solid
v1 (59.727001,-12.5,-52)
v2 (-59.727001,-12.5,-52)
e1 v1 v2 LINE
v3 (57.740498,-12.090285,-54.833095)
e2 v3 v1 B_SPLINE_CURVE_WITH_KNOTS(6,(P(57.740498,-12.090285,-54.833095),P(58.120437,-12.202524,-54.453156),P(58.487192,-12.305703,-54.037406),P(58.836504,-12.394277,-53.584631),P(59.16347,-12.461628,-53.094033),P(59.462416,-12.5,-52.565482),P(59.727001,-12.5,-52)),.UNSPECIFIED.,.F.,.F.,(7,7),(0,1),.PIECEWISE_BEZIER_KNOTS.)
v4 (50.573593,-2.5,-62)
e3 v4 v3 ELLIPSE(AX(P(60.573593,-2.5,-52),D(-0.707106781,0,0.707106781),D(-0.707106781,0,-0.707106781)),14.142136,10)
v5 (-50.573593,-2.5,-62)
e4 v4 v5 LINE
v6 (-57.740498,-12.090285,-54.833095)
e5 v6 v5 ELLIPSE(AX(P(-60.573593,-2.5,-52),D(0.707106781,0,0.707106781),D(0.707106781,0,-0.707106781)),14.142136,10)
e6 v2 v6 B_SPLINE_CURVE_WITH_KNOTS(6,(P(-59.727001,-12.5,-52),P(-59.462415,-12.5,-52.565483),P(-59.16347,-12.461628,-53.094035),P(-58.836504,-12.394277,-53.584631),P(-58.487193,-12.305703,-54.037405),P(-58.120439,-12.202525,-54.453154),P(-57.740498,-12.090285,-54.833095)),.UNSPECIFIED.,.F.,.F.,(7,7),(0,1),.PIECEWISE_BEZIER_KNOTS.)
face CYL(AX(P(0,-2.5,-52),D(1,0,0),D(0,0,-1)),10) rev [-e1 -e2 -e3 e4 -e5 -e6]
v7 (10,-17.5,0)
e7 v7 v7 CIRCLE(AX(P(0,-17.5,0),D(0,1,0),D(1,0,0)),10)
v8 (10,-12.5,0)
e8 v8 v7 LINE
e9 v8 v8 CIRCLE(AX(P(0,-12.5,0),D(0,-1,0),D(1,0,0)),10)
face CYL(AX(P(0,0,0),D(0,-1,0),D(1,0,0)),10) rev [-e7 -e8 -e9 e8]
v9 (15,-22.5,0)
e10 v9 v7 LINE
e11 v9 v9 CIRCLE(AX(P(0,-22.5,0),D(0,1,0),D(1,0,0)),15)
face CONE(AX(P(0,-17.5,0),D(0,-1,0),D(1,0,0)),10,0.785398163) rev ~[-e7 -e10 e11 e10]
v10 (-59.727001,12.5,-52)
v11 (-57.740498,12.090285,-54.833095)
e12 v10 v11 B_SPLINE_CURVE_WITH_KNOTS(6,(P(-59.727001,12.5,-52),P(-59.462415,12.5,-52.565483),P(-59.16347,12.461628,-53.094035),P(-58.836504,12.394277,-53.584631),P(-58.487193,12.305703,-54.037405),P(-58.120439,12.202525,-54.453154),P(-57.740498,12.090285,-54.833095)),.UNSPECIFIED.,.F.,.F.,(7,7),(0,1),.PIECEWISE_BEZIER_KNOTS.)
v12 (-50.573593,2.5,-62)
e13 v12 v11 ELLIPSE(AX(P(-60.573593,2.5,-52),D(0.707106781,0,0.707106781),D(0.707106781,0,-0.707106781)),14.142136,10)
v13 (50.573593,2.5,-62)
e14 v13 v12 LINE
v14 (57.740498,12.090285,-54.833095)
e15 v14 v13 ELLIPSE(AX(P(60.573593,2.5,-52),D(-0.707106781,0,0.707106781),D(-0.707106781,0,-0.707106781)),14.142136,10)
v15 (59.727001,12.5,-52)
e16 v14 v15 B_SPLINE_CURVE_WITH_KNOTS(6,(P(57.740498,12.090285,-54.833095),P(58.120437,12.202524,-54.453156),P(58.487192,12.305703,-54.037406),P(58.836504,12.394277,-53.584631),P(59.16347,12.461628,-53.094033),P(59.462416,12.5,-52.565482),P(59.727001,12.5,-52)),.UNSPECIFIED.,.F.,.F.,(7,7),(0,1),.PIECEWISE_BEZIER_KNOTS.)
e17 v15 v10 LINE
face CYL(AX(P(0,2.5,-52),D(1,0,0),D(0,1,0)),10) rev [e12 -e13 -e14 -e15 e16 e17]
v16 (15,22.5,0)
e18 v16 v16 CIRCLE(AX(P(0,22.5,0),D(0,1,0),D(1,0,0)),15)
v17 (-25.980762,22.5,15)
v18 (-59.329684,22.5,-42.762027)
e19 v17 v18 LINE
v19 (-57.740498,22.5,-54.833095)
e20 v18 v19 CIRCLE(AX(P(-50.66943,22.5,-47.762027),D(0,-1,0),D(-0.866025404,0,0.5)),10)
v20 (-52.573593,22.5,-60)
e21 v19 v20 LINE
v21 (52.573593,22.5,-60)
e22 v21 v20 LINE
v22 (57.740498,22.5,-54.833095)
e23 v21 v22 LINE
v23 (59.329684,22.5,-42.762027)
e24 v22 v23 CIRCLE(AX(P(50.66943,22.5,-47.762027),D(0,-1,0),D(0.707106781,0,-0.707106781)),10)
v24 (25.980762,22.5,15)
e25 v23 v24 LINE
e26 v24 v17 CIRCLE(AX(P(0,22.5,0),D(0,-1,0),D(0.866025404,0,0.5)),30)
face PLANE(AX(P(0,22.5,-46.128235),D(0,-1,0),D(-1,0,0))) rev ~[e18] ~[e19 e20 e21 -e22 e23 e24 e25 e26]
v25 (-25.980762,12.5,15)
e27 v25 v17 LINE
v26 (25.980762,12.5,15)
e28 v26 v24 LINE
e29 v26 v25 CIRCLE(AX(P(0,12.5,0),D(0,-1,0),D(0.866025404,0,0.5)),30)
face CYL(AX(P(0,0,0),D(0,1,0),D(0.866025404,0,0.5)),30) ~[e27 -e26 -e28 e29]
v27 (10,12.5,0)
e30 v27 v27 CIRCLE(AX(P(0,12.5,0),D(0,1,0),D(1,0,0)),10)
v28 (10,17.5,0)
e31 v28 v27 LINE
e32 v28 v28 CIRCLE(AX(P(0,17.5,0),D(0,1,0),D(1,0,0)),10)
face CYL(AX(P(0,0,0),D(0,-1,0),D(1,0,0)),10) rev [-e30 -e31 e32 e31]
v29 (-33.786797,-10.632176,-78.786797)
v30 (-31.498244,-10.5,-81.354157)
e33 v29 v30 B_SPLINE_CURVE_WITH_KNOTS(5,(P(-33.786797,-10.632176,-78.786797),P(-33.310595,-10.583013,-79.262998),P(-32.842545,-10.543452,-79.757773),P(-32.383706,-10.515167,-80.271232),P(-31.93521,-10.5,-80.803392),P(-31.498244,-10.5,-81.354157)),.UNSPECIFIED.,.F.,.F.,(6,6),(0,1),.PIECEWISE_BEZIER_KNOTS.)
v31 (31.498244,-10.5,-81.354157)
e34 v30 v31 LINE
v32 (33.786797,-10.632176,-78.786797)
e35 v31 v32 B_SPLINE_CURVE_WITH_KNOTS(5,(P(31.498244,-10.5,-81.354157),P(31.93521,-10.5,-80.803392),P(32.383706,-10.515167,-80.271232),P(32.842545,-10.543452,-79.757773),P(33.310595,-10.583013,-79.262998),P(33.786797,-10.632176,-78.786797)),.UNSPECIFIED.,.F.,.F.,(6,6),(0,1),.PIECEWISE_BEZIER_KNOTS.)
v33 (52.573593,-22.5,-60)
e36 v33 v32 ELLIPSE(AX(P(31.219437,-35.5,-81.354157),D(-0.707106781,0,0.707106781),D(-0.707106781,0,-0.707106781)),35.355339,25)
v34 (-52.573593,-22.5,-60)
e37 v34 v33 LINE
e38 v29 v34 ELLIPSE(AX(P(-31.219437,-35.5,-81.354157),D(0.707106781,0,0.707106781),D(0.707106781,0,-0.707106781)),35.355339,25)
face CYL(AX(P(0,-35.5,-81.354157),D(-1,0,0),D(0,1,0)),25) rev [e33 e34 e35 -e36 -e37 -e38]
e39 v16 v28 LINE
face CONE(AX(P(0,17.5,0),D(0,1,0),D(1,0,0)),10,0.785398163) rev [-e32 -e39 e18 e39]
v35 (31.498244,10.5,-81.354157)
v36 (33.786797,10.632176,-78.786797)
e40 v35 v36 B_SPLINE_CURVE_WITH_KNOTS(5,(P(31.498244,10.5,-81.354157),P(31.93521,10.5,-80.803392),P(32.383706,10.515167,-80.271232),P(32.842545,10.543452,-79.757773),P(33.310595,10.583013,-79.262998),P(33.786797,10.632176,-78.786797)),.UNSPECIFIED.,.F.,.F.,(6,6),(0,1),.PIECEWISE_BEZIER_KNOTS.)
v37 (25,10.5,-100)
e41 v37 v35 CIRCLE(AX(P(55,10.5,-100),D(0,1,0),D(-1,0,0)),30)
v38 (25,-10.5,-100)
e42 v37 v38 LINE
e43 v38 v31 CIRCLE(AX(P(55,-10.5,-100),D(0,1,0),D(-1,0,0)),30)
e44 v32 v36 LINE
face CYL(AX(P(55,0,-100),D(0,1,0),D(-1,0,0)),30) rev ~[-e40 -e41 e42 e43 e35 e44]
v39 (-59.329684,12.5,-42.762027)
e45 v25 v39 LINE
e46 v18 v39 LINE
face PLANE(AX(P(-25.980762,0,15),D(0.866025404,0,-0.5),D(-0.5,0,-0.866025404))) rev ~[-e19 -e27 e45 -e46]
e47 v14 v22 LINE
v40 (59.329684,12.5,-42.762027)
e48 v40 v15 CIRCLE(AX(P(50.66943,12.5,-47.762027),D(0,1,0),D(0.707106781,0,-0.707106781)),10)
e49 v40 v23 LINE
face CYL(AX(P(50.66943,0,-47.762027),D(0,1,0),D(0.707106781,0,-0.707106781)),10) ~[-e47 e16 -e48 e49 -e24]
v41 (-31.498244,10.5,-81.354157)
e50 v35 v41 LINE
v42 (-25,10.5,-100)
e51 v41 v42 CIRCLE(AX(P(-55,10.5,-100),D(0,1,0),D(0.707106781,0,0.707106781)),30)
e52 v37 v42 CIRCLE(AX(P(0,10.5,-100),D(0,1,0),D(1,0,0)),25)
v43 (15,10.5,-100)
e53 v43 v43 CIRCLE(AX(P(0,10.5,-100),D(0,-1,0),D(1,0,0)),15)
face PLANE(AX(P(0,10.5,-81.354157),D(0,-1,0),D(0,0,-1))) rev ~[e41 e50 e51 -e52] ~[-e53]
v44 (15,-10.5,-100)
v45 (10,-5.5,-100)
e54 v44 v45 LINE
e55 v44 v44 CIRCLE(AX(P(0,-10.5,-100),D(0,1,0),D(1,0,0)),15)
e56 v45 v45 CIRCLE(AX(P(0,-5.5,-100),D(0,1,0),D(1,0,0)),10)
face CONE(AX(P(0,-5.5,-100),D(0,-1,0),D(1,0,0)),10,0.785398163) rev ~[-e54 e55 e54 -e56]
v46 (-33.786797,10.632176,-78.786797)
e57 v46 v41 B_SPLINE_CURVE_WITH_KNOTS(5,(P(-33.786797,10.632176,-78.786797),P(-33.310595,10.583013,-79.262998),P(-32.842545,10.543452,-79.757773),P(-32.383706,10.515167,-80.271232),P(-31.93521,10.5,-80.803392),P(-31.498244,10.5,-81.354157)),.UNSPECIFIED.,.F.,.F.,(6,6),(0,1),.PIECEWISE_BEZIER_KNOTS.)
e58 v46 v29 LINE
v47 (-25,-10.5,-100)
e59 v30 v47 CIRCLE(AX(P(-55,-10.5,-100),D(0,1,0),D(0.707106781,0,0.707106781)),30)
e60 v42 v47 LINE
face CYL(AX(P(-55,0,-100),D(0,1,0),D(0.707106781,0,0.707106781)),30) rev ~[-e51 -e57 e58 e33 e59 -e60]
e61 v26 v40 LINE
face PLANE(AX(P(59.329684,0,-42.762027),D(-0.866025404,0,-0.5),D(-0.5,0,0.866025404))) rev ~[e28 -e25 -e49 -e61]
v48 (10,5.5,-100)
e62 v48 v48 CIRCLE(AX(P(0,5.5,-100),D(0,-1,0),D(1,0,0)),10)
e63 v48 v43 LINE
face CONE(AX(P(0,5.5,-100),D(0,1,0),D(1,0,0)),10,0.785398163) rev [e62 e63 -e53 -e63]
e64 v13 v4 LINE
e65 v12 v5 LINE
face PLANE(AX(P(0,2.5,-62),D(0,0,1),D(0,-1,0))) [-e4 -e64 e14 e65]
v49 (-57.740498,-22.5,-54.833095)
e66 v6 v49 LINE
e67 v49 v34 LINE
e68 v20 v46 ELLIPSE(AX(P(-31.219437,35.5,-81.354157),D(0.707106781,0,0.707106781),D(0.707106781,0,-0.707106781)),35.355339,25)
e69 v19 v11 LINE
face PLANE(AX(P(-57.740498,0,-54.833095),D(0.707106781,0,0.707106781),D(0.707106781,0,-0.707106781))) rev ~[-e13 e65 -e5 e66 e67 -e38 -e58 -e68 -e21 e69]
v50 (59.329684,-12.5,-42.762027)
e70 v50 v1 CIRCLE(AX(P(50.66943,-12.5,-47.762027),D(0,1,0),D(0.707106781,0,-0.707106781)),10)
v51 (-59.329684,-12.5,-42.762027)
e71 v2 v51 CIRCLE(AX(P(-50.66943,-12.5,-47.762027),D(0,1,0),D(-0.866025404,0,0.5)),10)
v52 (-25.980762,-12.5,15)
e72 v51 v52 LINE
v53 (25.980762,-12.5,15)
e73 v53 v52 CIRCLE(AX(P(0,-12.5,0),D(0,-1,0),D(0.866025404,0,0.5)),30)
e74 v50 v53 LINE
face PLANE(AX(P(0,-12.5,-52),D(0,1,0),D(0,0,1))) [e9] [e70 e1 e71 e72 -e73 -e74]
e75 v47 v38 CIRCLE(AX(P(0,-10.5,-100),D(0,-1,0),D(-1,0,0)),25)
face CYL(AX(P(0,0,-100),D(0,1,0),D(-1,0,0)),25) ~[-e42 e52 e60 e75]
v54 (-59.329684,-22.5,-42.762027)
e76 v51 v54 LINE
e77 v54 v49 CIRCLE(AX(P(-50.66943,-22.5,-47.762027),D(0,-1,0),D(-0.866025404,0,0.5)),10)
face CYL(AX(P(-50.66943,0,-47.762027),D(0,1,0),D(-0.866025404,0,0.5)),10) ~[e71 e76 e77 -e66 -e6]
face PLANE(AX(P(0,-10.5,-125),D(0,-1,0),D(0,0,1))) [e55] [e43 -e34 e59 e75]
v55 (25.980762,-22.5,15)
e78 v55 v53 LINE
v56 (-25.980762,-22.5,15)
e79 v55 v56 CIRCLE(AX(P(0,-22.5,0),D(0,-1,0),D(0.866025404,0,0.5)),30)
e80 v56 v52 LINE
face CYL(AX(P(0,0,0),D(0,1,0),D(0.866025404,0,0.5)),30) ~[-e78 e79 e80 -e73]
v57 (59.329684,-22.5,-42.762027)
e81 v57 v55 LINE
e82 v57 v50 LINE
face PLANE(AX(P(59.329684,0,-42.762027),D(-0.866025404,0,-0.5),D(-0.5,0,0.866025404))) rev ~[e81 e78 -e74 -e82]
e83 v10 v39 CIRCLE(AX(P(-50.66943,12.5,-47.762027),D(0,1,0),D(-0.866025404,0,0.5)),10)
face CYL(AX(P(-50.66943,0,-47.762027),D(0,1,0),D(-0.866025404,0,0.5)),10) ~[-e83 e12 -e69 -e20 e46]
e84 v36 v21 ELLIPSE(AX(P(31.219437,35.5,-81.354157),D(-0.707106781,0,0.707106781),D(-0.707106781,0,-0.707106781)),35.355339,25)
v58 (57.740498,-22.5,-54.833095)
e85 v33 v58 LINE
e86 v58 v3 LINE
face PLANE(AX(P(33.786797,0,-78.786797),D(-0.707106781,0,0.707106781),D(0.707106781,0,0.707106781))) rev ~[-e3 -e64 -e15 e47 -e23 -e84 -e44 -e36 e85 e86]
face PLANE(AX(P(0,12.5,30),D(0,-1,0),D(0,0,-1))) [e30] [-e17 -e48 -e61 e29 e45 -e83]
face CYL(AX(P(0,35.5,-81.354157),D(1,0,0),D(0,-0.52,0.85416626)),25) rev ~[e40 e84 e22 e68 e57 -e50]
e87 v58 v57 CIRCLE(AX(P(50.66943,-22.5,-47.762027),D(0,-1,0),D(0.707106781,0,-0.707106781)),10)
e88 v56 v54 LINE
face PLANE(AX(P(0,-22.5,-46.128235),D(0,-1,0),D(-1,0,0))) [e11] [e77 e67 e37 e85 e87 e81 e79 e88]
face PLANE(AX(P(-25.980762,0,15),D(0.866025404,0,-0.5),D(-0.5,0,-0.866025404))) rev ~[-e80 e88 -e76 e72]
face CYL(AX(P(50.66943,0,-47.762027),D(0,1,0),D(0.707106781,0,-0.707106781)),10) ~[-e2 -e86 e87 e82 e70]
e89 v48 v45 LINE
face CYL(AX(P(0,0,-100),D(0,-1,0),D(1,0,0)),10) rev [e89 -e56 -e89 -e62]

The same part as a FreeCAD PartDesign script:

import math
import FreeCAD as App
import Part
import Sketcher
from FreeCAD import Vector
Q = App.Units.Quantity


def edges_at(feature, points):
    """Names of the edges that pass closest to the given points."""
    edges = feature.Shape.Edges
    near = lambda p: min(range(len(edges)), key=lambda i: edges[i].distToShape(Part.Vertex(*p))[0])
    return sorted({f"Edge{near(p) + 1}" for p in points})

doc = App.newDocument("Part")
body = doc.addObject("PartDesign::Body", "Body")

sketch1 = body.newObject("Sketcher::SketchObject", "Sketch")
sketch1.AttachmentSupport = (doc.getObject("XZ_Plane"), [""])
sketch1.MapMode = "FlatFace"
sketch1.addGeometry(Part.LineSegment(Vector(-59, -43, 0), Vector(-26, 15, 0)), False)
sketch1.addGeometry(Part.ArcOfCircle(Part.Circle(Vector(0, 0, 0), Vector(0, 0, 1), 30), math.radians(30), math.radians(150)), False)
sketch1.addGeometry(Part.LineSegment(Vector(26, 15, 0), Vector(59, -43, 0)), False)
sketch1.addGeometry(Part.ArcOfCircle(Part.Circle(Vector(51, -48, 0), Vector(0, 0, 1), 10), math.radians(-45), math.radians(30)), False)
sketch1.addGeometry(Part.LineSegment(Vector(58, -55, 0), Vector(34, -79, 0)), False)
sketch1.addGeometry(Part.ArcOfCircle(Part.Circle(Vector(55, -100, 0), Vector(0, 0, 1), 30), math.radians(135), math.radians(180)), False)
sketch1.addGeometry(Part.ArcOfCircle(Part.Circle(Vector(0, -100, 0), Vector(0, 0, 1), 25), math.radians(180), math.radians(360)), False)
sketch1.addGeometry(Part.ArcOfCircle(Part.Circle(Vector(-55, -100, 0), Vector(0, 0, 1), 30), math.radians(0), math.radians(45)), False)
sketch1.addGeometry(Part.LineSegment(Vector(-34, -79, 0), Vector(-58, -55, 0)), False)
sketch1.addGeometry(Part.ArcOfCircle(Part.Circle(Vector(-51, -48, 0), Vector(0, 0, 1), 10), math.radians(150), math.radians(225)), False)
sketch1.addGeometry(Part.Circle(Vector(0, 0, 0), Vector(0, 0, 1), 10), False)
sketch1.addGeometry(Part.Circle(Vector(0, -100, 0), Vector(0, 0, 1), 10), False)
sketch1.addConstraint(Sketcher.Constraint("Tangent", 0, 2, 1, 2))
sketch1.addConstraint(Sketcher.Constraint("Tangent", 1, 1, 2, 1))
sketch1.addConstraint(Sketcher.Constraint("Tangent", 2, 2, 3, 2))
sketch1.addConstraint(Sketcher.Constraint("Tangent", 3, 1, 4, 1))
sketch1.addConstraint(Sketcher.Constraint("Tangent", 4, 2, 5, 1))
sketch1.addConstraint(Sketcher.Constraint("Tangent", 5, 2, 6, 2))
sketch1.addConstraint(Sketcher.Constraint("Tangent", 6, 1, 7, 1))
sketch1.addConstraint(Sketcher.Constraint("Tangent", 7, 2, 8, 1))
sketch1.addConstraint(Sketcher.Constraint("Tangent", 8, 2, 9, 2))
sketch1.addConstraint(Sketcher.Constraint("Tangent", 9, 1, 0, 1))
sketch1.addConstraint(Sketcher.Constraint("Coincident", 1, 3, -1, 1))
sketch1.addConstraint(Sketcher.Constraint("Coincident", 10, 3, -1, 1))
sketch1.addConstraint(Sketcher.Constraint("Coincident", 11, 3, 6, 3))
sketch1.addConstraint(Sketcher.Constraint("Equal", 1, 5))
sketch1.addConstraint(Sketcher.Constraint("Equal", 5, 7))
sketch1.addConstraint(Sketcher.Constraint("Equal", 3, 9))
sketch1.addConstraint(Sketcher.Constraint("Equal", 9, 10))
sketch1.addConstraint(Sketcher.Constraint("Equal", 10, 11))
sketch1.addConstraint(Sketcher.Constraint("Symmetric", 5, 3, 7, 3, -2))
sketch1.addConstraint(Sketcher.Constraint("Symmetric", 3, 3, 9, 3, -2))
sketch1.addConstraint(Sketcher.Constraint("Perpendicular", 4, 8))
sketch1.addConstraint(Sketcher.Constraint("Horizontal", 5, 3, 6, 3))
sketch1.addConstraint(Sketcher.Constraint("Diameter", 10, 20.0))
sketch1.addConstraint(Sketcher.Constraint("Radius", 1, 30.0))
sketch1.addConstraint(Sketcher.Constraint("Radius", 6, 25.0))
sketch1.addConstraint(Sketcher.Constraint("Angle", 0, Q("60 deg")))
sketch1.addConstraint(Sketcher.Constraint("DistanceY", 5, 3, -1, 1, 100.0))
pad1 = body.newObject("PartDesign::Pad", "Pad")
pad1.Profile = sketch1
pad1.Length = 45
pad1.Midplane = True

sketch2 = body.newObject("Sketcher::SketchObject", "Sketch001")
sketch2.AttachmentSupport = (doc.getObject("YZ_Plane"), [""])
sketch2.MapMode = "FlatFace"
sketch2.addGeometry(Part.LineSegment(Vector(12, -52, 0), Vector(12, 30, 0)), False)
sketch2.addGeometry(Part.LineSegment(Vector(12, 30, 0), Vector(-12, 30, 0)), False)
sketch2.addGeometry(Part.LineSegment(Vector(-12, 30, 0), Vector(-12, -52, 0)), False)
sketch2.addGeometry(Part.ArcOfCircle(Part.Circle(Vector(-2, -52, 0), Vector(0, 0, 1), 10), math.radians(180), math.radians(270)), False)
sketch2.addGeometry(Part.LineSegment(Vector(-2, -62, 0), Vector(2, -62, 0)), False)
sketch2.addGeometry(Part.ArcOfCircle(Part.Circle(Vector(2, -52, 0), Vector(0, 0, 1), 10), math.radians(-90), math.radians(0)), False)
sketch2.addGeometry(Part.LineSegment(Vector(10, -81, 0), Vector(10, -125, 0)), False)
sketch2.addGeometry(Part.LineSegment(Vector(10, -125, 0), Vector(22, -125, 0)), False)
sketch2.addGeometry(Part.LineSegment(Vector(22, -125, 0), Vector(22, -60, 0)), False)
sketch2.addGeometry(Part.ArcOfCircle(Part.Circle(Vector(35, -81, 0), Vector(0, 0, 1), 25), math.radians(121), math.radians(180)), False)
sketch2.addGeometry(Part.LineSegment(Vector(-22, -125, 0), Vector(-10, -125, 0)), False)
sketch2.addGeometry(Part.LineSegment(Vector(-10, -125, 0), Vector(-10, -81, 0)), False)
sketch2.addGeometry(Part.ArcOfCircle(Part.Circle(Vector(-35, -81, 0), Vector(0, 0, 1), 25), math.radians(0), math.radians(59)), False)
sketch2.addGeometry(Part.LineSegment(Vector(-22, -60, 0), Vector(-22, -125, 0)), False)
sketch2.addConstraint(Sketcher.Constraint("Coincident", 0, 2, 1, 1))
sketch2.addConstraint(Sketcher.Constraint("Coincident", 1, 2, 2, 1))
sketch2.addConstraint(Sketcher.Constraint("Tangent", 2, 2, 3, 1))
sketch2.addConstraint(Sketcher.Constraint("Tangent", 3, 2, 4, 1))
sketch2.addConstraint(Sketcher.Constraint("Tangent", 4, 2, 5, 1))
sketch2.addConstraint(Sketcher.Constraint("Tangent", 5, 2, 0, 1))
sketch2.addConstraint(Sketcher.Constraint("Coincident", 6, 2, 7, 1))
sketch2.addConstraint(Sketcher.Constraint("Coincident", 7, 2, 8, 1))
sketch2.addConstraint(Sketcher.Constraint("Coincident", 8, 2, 9, 1))
sketch2.addConstraint(Sketcher.Constraint("Tangent", 9, 2, 6, 1))
sketch2.addConstraint(Sketcher.Constraint("Coincident", 10, 2, 11, 1))
sketch2.addConstraint(Sketcher.Constraint("Tangent", 11, 2, 12, 1))
sketch2.addConstraint(Sketcher.Constraint("Coincident", 12, 2, 13, 1))
sketch2.addConstraint(Sketcher.Constraint("Coincident", 13, 2, 10, 1))
sketch2.addConstraint(Sketcher.Constraint("Vertical", 0))
sketch2.addConstraint(Sketcher.Constraint("Horizontal", 1))
sketch2.addConstraint(Sketcher.Constraint("Vertical", 2))
sketch2.addConstraint(Sketcher.Constraint("Horizontal", 4))
sketch2.addConstraint(Sketcher.Constraint("Vertical", 6))
sketch2.addConstraint(Sketcher.Constraint("Horizontal", 7))
sketch2.addConstraint(Sketcher.Constraint("Vertical", 8))
sketch2.addConstraint(Sketcher.Constraint("Horizontal", 10))
sketch2.addConstraint(Sketcher.Constraint("Vertical", 11))
sketch2.addConstraint(Sketcher.Constraint("Vertical", 13))
sketch2.addConstraint(Sketcher.Constraint("Equal", 3, 5))
sketch2.addConstraint(Sketcher.Constraint("Equal", 9, 12))
sketch2.addConstraint(Sketcher.Constraint("Symmetric", 9, 3, 12, 3, -2))
sketch2.addConstraint(Sketcher.Constraint("Symmetric", 7, 2, 13, 2, -2))
sketch2.addConstraint(Sketcher.Constraint("Radius", 3, 10.0))
sketch2.addConstraint(Sketcher.Constraint("Radius", 9, 25.0))
sketch2.addConstraint(Sketcher.Constraint("DistanceX", 1, 2, 1, 1, 25.0))
sketch2.addConstraint(Sketcher.Constraint("DistanceX", 7, 1, 7, 2, 12.0))
sketch2.addConstraint(Sketcher.Constraint("DistanceY", 0, 1, 0, 2, 82.0))
sketch2.addConstraint(Sketcher.Constraint("DistanceY", 8, 1, 8, 2, 65.0))
sketch2.addConstraint(Sketcher.Constraint("DistanceY", 3, 3, -1, 1, 52.0))
sketch2.addConstraint(Sketcher.Constraint("DistanceY", 6, 2, -1, 1, 125.0))
sketch2.addConstraint(Sketcher.Constraint("DistanceX", 5, 3, 9, 3, 33.0))
sketch2.addConstraint(Sketcher.Constraint("DistanceX", 12, 3, 3, 3, 33.0))
pocket1 = body.newObject("PartDesign::Pocket", "Pocket")
pocket1.Profile = sketch2
pocket1.Type = "ThroughAll"
pocket1.Midplane = True
doc.recompute()

chamfer = body.newObject("PartDesign::Chamfer", "Chamfer")
chamfer.Base = (pocket1, edges_at(pocket1, [
    (-10, -22.5, 0),
    (-10, 22.5, 0),
    (-10, -10.5, -100),
    (-10, 10.5, -100),
]))
chamfer.Size = 5

doc.recompute()
